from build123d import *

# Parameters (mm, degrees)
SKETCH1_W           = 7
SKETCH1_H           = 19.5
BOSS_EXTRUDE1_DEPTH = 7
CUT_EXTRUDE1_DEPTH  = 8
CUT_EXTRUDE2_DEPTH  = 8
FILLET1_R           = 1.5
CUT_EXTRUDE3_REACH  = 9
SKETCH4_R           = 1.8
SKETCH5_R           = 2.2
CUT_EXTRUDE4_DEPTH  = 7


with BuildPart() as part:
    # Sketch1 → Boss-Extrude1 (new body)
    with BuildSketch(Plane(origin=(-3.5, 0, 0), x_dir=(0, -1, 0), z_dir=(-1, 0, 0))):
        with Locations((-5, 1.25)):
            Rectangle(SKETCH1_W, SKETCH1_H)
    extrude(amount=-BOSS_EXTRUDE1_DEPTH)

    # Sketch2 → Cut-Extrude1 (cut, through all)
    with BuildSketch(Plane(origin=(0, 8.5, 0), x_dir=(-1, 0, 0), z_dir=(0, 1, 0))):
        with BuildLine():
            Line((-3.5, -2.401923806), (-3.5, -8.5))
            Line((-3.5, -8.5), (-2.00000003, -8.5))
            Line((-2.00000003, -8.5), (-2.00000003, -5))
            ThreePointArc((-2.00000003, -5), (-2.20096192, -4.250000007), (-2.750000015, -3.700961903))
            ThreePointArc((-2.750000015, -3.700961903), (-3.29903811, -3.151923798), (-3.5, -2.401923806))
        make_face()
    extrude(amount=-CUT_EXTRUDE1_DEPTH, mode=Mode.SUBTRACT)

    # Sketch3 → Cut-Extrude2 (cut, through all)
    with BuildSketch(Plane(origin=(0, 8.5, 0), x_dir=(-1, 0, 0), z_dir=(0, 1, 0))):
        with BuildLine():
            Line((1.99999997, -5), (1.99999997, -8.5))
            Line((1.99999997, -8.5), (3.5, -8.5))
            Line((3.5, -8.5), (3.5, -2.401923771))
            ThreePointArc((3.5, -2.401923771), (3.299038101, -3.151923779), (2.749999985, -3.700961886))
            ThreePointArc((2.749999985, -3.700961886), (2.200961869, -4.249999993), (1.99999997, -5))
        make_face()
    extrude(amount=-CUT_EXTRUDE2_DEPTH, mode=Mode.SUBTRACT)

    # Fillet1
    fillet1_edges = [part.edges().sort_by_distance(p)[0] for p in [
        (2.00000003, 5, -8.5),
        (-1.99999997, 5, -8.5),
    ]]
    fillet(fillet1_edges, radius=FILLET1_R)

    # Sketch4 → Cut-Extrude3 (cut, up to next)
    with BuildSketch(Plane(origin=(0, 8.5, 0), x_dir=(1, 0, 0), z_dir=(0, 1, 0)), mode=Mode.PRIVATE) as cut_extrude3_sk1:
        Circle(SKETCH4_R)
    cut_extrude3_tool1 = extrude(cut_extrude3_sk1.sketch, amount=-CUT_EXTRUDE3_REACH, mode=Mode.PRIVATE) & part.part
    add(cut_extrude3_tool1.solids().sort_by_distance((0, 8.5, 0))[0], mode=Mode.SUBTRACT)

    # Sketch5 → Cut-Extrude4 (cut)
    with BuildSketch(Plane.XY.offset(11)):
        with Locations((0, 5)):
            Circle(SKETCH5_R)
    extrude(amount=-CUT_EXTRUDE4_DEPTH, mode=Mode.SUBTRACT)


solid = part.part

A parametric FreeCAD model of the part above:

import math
import FreeCAD as App
import Part
import Sketcher

V = App.Vector


def edges_at(feature, points):
    """Names of the edges that pass closest to the given points."""
    edges = feature.Shape.Edges
    near = lambda p: min(range(len(edges)), key=lambda i: edges[i].distToShape(Part.Vertex(*p))[0])
    return sorted({f"Edge{near(p) + 1}" for p in points})


def add_polygon(sketch, points):
    """Adds a closed chain of lines whose ends are joined by coincident constraints."""
    first, n = sketch.GeometryCount, len(points)
    for a, b in zip(points, points[1:] + points[:1]):
        sketch.addGeometry(Part.LineSegment(App.Vector(*a, 0), App.Vector(*b, 0)), False)
    for i in range(n):
        sketch.addConstraint(Sketcher.Constraint("Coincident", first + i, 2, first + (i + 1) % n, 1))

doc = App.newDocument("Part")
params = doc.addObject("Spreadsheet::Sheet", "Params")
for row, (alias, value) in enumerate([
    ("sketch1_width", "7 mm"),
    ("sketch1_height", "19.5 mm"),
    ("pad1_length", "7 mm"),
    ("sketch2_radius", "1.5 mm"),
    ("sketch2_height", "3.5 mm"),
    ("sketch3_radius", "1.5 mm"),
    ("sketch3_height", "3.5 mm"),
    ("fillet_radius", "1.5 mm"),
    ("sketch4_diameter", "3.6 mm"),
    ("sketch5_diameter", "4.4 mm"),
    ("pocket4_length", "7 mm"),
], start=1):
    params.set(f"A{row}", alias)
    params.set(f"B{row}", "=" + value)
    params.setAlias(f"B{row}", alias)

body = doc.addObject("PartDesign::Body", "Body")

sketch1 = doc.addObject("Sketcher::SketchObject", "Sketch")
body.addObject(sketch1)
sketch1.AttachmentSupport = (doc.YZ_Plane, [""])
sketch1.MapMode = "FlatFace"
sketch1.AttachmentOffset = App.Placement(V(0, 0, -3.5), App.Rotation())
add_polygon(sketch1, [(8.5, 11), (8.5, -8.5), (1.5, -8.5), (1.5, 11)])
sketch1.addConstraint(Sketcher.Constraint("Vertical", 0))
sketch1.addConstraint(Sketcher.Constraint("Horizontal", 1))
sketch1.addConstraint(Sketcher.Constraint("Vertical", 2))
sketch1.addConstraint(Sketcher.Constraint("Horizontal", 3))
sketch1.addConstraint(Sketcher.Constraint("DistanceX", 1, 2, 1, 1, 7.0))
sketch1.addConstraint(Sketcher.Constraint("DistanceY", 0, 2, 0, 1, 19.5))
sketch1.addConstraint(Sketcher.Constraint("DistanceY", -1, 1, 2, 2, 11.0))
sketch1.addConstraint(Sketcher.Constraint("DistanceX", -1, 1, 0, 2, 8.5))
sketch1.setExpression("Constraints[8]", "Params.sketch1_width")
sketch1.setExpression("Constraints[9]", "Params.sketch1_height")
pad1 = doc.addObject("PartDesign::Pad", "Pad")
body.addObject(pad1)
pad1.Profile = sketch1
pad1.setExpression("Length", "Params.pad1_length")

sketch2 = doc.addObject("Sketcher::SketchObject", "Sketch001")
body.addObject(sketch2)
sketch2.AttachmentSupport = (doc.XZ_Plane, [""])
sketch2.MapMode = "FlatFace"
sketch2.AttachmentOffset = App.Placement(V(0, 0, -8.5), App.Rotation())
sketch2.addGeometry(Part.LineSegment(V(3.5, -2.401924, 0), V(3.5, -8.5, 0)), False)
sketch2.addGeometry(Part.LineSegment(V(3.5, -8.5, 0), V(2, -8.5, 0)), False)
sketch2.addGeometry(Part.LineSegment(V(2, -8.5, 0), V(2, -5, 0)), False)
sketch2.addGeometry(Part.ArcOfCircle(Part.Circle(V(3.5, -5, 0), V(0, 0, 1), 1.5), math.radians(120.000001), math.radians(180)), False)
sketch2.addGeometry(Part.ArcOfCircle(Part.Circle(V(2, -2.401924, 0), V(0, 0, 1), 1.5), math.radians(-59.999999), math.radians(0)), False)
sketch2.addConstraint(Sketcher.Constraint("Coincident", 0, 2, 1, 1))
sketch2.addConstraint(Sketcher.Constraint("Coincident", 1, 2, 2, 1))
sketch2.addConstraint(Sketcher.Constraint("Tangent", 2, 2, 3, 2))
sketch2.addConstraint(Sketcher.Constraint("Tangent", 3, 1, 4, 1))
sketch2.addConstraint(Sketcher.Constraint("Tangent", 4, 2, 0, 1))
sketch2.addConstraint(Sketcher.Constraint("Vertical", 0))
sketch2.addConstraint(Sketcher.Constraint("Horizontal", 1))
sketch2.addConstraint(Sketcher.Constraint("Vertical", 2))
sketch2.addConstraint(Sketcher.Constraint("Equal", 3, 4))
sketch2.addConstraint(Sketcher.Constraint("Vertical", 3, 3, 0, 2))
sketch2.addConstraint(Sketcher.Constraint("Radius", 3, 1.5))
sketch2.addConstraint(Sketcher.Constraint("DistanceY", 2, 1, 2, 2, 3.5))
sketch2.addConstraint(Sketcher.Constraint("DistanceY", 3, 3, -1, 1, 5.0))
sketch2.addConstraint(Sketcher.Constraint("DistanceX", -1, 1, 4, 3, 2.0))
sketch2.setExpression("Constraints[10]", "Params.sketch2_radius")
sketch2.setExpression("Constraints[11]", "Params.sketch2_height")
pocket1 = doc.addObject("PartDesign::Pocket", "Pocket")
body.addObject(pocket1)
pocket1.Profile = sketch2
pocket1.Type = "ThroughAll"
pocket1.Reversed = True

sketch3 = doc.addObject("Sketcher::SketchObject", "Sketch002")
body.addObject(sketch3)
sketch3.AttachmentSupport = (doc.XZ_Plane, [""])
sketch3.MapMode = "FlatFace"
sketch3.AttachmentOffset = App.Placement(V(0, 0, -8.5), App.Rotation())
sketch3.addGeometry(Part.LineSegment(V(-2, -5, 0), V(-2, -8.5, 0)), False)
sketch3.addGeometry(Part.LineSegment(V(-2, -8.5, 0), V(-3.5, -8.5, 0)), False)
sketch3.addGeometry(Part.LineSegment(V(-3.5, -8.5, 0), V(-3.5, -2.401924, 0)), False)
sketch3.addGeometry(Part.ArcOfCircle(Part.Circle(V(-2, -2.401924, 0), V(0, 0, 1), 1.5), math.radians(-180), math.radians(-119.999999)), False)
sketch3.addGeometry(Part.ArcOfCircle(Part.Circle(V(-3.5, -5, 0), V(0, 0, 1), 1.5), math.radians(0), math.radians(60.000001)), False)
sketch3.addConstraint(Sketcher.Constraint("Coincident", 0, 2, 1, 1))
sketch3.addConstraint(Sketcher.Constraint("Coincident", 1, 2, 2, 1))
sketch3.addConstraint(Sketcher.Constraint("Tangent", 2, 2, 3, 1))
sketch3.addConstraint(Sketcher.Constraint("Tangent", 3, 2, 4, 2))
sketch3.addConstraint(Sketcher.Constraint("Tangent", 4, 1, 0, 1))
sketch3.addConstraint(Sketcher.Constraint("Vertical", 0))
sketch3.addConstraint(Sketcher.Constraint("Horizontal", 1))
sketch3.addConstraint(Sketcher.Constraint("Vertical", 2))
sketch3.addConstraint(Sketcher.Constraint("Equal", 3, 4))
sketch3.addConstraint(Sketcher.Constraint("Vertical", 3, 3, 0, 2))
sketch3.addConstraint(Sketcher.Constraint("Radius", 3, 1.5))
sketch3.addConstraint(Sketcher.Constraint("DistanceY", 0, 2, 0, 1, 3.5))
sketch3.addConstraint(Sketcher.Constraint("DistanceX", 3, 3, -1, 1, 2.0))
sketch3.addConstraint(Sketcher.Constraint("DistanceY", 4, 3, -1, 1, 5.0))
sketch3.setExpression("Constraints[10]", "Params.sketch3_radius")
sketch3.setExpression("Constraints[11]", "Params.sketch3_height")
pocket2 = doc.addObject("PartDesign::Pocket", "Pocket001")
body.addObject(pocket2)
pocket2.Profile = sketch3
pocket2.Type = "ThroughAll"
pocket2.Reversed = True
doc.recompute()

fillet = doc.addObject("PartDesign::Fillet", "Fillet")
body.addObject(fillet)
fillet.Base = (pocket2, edges_at(pocket2, [(2, 5, -8.5), (-2, 5, -8.5)]))
fillet.setExpression("Radius", "Params.fillet_radius")

sketch4 = doc.addObject("Sketcher::SketchObject", "Sketch003")
body.addObject(sketch4)
sketch4.AttachmentSupport = (doc.XZ_Plane, [""])
sketch4.MapMode = "FlatFace"
sketch4.AttachmentOffset = App.Placement(V(0, 0, -8.5), App.Rotation())
sketch4.addGeometry(Part.Circle(V(0, 0, 0), V(0, 0, 1), 1.8), False)
sketch4.addConstraint(Sketcher.Constraint("Coincident", 0, 3, -1, 1))
sketch4.addConstraint(Sketcher.Constraint("Diameter", 0, 3.6))
sketch4.setExpression("Constraints[1]", "Params.sketch4_diameter")
pocket3 = doc.addObject("PartDesign::Pocket", "Pocket002")
body.addObject(pocket3)
pocket3.Profile = sketch4
pocket3.Type = "UpToFirst"
pocket3.Reversed = True

sketch5 = doc.addObject("Sketcher::SketchObject", "Sketch004")
body.addObject(sketch5)
sketch5.AttachmentSupport = (doc.XY_Plane, [""])
sketch5.MapMode = "FlatFace"
sketch5.AttachmentOffset = App.Placement(V(0, 0, 11), App.Rotation())
sketch5.addGeometry(Part.Circle(V(0, 5, 0), V(0, 0, 1), 2.2), False)
sketch5.addConstraint(Sketcher.Constraint("PointOnObject", 0, 3, -2))
sketch5.addConstraint(Sketcher.Constraint("Diameter", 0, 4.4))
sketch5.addConstraint(Sketcher.Constraint("DistanceY", -1, 1, 0, 3, 5.0))
sketch5.setExpression("Constraints[1]", "Params.sketch5_diameter")
pocket4 = doc.addObject("PartDesign::Pocket", "Pocket003")
body.addObject(pocket4)
pocket4.Profile = sketch5
pocket4.setExpression("Length", "Params.pocket4_length")

doc.recompute()
